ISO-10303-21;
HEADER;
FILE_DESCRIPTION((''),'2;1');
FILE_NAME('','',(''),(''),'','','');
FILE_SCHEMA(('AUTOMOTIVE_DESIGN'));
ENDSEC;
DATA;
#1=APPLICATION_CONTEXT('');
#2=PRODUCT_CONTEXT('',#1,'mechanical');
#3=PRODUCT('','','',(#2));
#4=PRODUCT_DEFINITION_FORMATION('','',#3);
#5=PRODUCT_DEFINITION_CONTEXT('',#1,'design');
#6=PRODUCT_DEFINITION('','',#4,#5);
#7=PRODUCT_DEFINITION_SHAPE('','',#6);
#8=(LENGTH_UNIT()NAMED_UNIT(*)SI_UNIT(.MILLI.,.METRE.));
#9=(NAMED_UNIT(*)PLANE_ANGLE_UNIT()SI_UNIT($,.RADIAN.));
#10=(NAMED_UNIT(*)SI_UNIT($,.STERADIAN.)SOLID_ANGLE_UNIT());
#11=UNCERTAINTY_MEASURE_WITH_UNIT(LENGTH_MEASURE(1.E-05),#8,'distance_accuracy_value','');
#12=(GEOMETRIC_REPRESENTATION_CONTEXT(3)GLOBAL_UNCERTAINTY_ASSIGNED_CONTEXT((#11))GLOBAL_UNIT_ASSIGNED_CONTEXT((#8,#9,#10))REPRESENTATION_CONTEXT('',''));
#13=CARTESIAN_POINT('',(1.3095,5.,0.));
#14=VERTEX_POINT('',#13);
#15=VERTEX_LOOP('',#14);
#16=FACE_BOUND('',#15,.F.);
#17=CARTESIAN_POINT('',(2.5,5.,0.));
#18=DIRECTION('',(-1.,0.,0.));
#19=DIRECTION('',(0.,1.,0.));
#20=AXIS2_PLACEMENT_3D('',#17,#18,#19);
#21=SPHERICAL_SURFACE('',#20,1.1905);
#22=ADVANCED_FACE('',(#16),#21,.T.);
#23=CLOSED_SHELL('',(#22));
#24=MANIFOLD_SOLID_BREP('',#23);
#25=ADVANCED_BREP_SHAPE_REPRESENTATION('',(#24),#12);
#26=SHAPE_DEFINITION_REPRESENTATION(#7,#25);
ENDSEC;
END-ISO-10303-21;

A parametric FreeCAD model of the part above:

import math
import FreeCAD as App
import Part
import Sketcher

V = App.Vector

doc = App.newDocument("Part")
body = doc.addObject("PartDesign::Body", "Body")

# Sketch on XY plane
sketch1 = body.newObject("Sketcher::SketchObject", "Sketch")
sketch1.AttachmentSupport = (doc.getObject("XY_Plane"), [""])
sketch1.MapMode = "FlatFace"
sketch1.addGeometry(Part.LineSegment(V(1.3, 5, 0), V(3.7, 5, 0)), False)
sketch1.addGeometry(Part.ArcOfCircle(Part.Circle(V(2.5, 5, 0), V(0, 0, 1), 1.2), math.radians(0), math.radians(180)), False)
sketch1.addGeometry(Part.LineSegment(V(1.3, 5, 0), V(3.7, 5, 0)), True)  # axis
sketch1.addConstraint(Sketcher.Constraint("Coincident", 0, 1, 1, 2))
sketch1.addConstraint(Sketcher.Constraint("Coincident", 1, 1, 0, 2))
sketch1.addConstraint(Sketcher.Constraint("Horizontal", 0))
sketch1.addConstraint(Sketcher.Constraint("Horizontal", 2))
sketch1.addConstraint(Sketcher.Constraint("Coincident", 2, 1, 0, 1))
sketch1.addConstraint(Sketcher.Constraint("Horizontal", 1, 3, 0, 1))
sketch1.addConstraint(Sketcher.Constraint("Equal", 0, 2))
sketch1.addConstraint(Sketcher.Constraint("DistanceY", -1, 1, 1, 3, 5.0))
sketch1.addConstraint(Sketcher.Constraint("DistanceX", -1, 1, 1, 3, 2.5))
sketch1.addConstraint(Sketcher.Constraint("Radius", 1, 1.1905))
revolution = body.newObject("PartDesign::Revolution", "Revolution")
revolution.Profile = sketch1
revolution.ReferenceAxis = (sketch1, ["Axis0"])
revolution.Angle = 360

doc.recompute()
